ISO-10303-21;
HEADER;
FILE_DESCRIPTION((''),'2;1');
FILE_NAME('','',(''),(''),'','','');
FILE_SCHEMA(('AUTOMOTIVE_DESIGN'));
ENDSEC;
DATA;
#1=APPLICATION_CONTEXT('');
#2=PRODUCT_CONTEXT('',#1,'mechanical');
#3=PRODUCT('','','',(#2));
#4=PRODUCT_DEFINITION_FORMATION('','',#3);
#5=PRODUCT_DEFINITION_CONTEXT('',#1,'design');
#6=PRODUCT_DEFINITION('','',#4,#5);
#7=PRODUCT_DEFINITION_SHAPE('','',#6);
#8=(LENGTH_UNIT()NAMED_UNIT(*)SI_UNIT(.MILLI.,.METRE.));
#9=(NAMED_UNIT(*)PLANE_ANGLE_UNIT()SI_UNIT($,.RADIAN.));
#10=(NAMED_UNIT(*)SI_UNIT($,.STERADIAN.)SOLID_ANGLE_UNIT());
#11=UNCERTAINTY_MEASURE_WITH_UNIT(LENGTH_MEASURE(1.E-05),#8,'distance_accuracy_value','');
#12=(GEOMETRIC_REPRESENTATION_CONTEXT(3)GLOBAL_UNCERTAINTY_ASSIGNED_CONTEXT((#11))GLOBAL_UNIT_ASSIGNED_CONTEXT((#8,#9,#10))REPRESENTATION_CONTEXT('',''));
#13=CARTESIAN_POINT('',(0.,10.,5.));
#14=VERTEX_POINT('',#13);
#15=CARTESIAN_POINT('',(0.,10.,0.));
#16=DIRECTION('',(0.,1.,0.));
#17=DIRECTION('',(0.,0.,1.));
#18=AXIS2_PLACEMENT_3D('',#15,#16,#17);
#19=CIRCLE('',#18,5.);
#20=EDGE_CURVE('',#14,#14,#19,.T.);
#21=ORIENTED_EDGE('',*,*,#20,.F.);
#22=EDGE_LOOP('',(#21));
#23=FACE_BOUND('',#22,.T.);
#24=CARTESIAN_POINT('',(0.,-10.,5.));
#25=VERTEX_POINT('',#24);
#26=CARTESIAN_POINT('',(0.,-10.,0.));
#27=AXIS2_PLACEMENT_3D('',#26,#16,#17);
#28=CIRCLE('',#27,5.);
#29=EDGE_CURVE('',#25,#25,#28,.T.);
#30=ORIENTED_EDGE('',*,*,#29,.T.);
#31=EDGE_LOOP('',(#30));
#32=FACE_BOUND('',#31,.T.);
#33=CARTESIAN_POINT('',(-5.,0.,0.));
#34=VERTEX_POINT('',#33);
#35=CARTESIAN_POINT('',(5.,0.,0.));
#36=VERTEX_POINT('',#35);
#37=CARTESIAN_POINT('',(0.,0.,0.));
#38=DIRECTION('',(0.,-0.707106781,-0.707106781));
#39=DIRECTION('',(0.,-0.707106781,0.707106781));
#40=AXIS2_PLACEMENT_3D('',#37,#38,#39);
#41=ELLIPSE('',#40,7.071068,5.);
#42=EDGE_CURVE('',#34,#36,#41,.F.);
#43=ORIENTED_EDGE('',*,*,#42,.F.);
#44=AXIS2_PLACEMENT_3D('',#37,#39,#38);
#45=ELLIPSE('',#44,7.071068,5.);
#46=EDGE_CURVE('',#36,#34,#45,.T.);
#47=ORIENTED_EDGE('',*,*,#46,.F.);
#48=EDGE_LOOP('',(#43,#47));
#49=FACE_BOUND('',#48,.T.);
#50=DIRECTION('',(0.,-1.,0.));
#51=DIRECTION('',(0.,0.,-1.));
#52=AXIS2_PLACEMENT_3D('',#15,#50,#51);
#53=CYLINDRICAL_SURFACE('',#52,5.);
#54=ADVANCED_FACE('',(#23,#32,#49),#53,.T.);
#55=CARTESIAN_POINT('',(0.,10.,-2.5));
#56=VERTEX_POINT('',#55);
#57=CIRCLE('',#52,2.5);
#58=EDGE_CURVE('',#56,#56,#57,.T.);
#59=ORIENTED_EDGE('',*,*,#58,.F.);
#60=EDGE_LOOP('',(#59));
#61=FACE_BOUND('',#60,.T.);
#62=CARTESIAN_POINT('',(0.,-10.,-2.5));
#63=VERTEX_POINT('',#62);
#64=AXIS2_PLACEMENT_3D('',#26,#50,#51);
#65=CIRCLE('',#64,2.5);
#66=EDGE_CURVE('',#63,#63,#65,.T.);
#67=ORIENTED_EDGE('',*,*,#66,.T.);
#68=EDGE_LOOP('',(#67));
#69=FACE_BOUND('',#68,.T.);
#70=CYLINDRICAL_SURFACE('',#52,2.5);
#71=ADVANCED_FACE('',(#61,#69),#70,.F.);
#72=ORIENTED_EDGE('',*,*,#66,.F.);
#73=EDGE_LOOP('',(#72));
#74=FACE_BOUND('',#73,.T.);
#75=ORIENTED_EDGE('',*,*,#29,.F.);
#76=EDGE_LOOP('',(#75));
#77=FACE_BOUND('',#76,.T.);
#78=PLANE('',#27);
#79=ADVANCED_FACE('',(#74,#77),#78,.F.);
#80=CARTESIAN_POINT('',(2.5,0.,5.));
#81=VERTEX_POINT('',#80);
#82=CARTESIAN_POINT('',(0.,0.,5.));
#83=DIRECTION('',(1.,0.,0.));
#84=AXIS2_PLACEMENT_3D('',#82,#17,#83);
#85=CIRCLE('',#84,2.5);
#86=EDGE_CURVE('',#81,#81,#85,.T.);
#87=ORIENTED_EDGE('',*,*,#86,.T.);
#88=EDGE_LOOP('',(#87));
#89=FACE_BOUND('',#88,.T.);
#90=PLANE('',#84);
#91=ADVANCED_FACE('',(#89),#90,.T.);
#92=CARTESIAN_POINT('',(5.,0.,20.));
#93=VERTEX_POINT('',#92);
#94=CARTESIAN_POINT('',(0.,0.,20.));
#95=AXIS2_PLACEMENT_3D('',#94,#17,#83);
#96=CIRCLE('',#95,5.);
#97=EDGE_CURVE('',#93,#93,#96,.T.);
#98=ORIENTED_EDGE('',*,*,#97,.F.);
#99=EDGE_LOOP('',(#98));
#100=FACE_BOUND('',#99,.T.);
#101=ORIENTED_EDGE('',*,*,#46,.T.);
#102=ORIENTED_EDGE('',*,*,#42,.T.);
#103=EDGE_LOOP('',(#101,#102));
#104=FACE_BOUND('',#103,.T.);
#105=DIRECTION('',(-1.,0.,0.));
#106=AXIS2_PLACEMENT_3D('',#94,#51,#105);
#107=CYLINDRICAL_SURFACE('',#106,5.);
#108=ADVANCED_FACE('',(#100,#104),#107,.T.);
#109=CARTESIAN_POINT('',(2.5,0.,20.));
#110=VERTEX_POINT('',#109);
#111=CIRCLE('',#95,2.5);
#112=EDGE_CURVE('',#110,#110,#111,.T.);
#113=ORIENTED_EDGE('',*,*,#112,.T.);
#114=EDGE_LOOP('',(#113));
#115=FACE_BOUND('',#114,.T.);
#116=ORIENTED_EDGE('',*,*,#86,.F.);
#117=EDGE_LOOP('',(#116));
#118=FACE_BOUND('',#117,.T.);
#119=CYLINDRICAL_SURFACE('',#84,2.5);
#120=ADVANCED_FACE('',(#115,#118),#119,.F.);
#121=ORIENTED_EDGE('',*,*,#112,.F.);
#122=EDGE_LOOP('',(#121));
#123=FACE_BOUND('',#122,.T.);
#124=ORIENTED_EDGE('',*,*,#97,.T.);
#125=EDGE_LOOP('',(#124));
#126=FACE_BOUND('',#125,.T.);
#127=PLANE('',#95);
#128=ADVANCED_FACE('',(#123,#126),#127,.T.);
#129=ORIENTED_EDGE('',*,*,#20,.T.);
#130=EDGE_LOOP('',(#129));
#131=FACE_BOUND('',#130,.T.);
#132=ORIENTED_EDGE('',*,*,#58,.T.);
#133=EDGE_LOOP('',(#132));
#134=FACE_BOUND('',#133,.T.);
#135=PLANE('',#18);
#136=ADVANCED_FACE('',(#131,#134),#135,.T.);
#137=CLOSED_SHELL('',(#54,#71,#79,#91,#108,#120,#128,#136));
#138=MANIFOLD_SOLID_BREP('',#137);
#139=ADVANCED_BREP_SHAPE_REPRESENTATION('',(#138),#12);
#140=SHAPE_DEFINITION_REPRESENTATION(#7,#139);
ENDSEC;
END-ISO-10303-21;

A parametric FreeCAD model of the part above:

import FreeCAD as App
import Part
import Sketcher
Q = App.Units.Quantity

doc = App.newDocument("Part")
body = doc.addObject("PartDesign::Body", "Body")

# Sketch on XZ plane
sketch1 = body.newObject("Sketcher::SketchObject", "Sketch")
sketch1.AttachmentSupport = (doc.getObject("XZ_Plane"), [""])
sketch1.MapMode = "FlatFace"
sketch1.addGeometry(Part.Circle(App.Vector(0, 0, 0), App.Vector(0, 0, 1), 5), False)
sketch1.addConstraint(Sketcher.Constraint("Coincident", 0, 3, -1, 1))
sketch1.addConstraint(Sketcher.Constraint("Diameter", 0, Q("10 mm")))
pad1 = body.newObject("PartDesign::Pad", "Pad")
pad1.Profile = sketch1
pad1.Length = 20
pad1.Midplane = True

# Sketch on XY plane
sketch2 = body.newObject("Sketcher::SketchObject", "Sketch001")
sketch2.AttachmentSupport = (doc.getObject("XY_Plane"), [""])
sketch2.MapMode = "FlatFace"
sketch2.addGeometry(Part.Circle(App.Vector(0, 0, 0), App.Vector(0, 0, 1), 5), False)
sketch2.addConstraint(Sketcher.Constraint("Coincident", 0, 3, -1, 1))
sketch2.addConstraint(Sketcher.Constraint("Diameter", 0, Q("10 mm")))
pad2 = body.newObject("PartDesign::Pad", "Pad001")
pad2.Profile = sketch2
pad2.Length = 20

# Sketch on XY plane
sketch3 = body.newObject("Sketcher::SketchObject", "Sketch002")
sketch3.AttachmentSupport = (doc.getObject("XY_Plane"), [""])
sketch3.MapMode = "FlatFace"
sketch3.AttachmentOffset = App.Placement(App.Vector(0, 0, 20), App.Rotation())
sketch3.addGeometry(Part.Circle(App.Vector(0, 0, 0), App.Vector(0, 0, 1), 2.5), False)
sketch3.addConstraint(Sketcher.Constraint("Coincident", 0, 3, -1, 1))
sketch3.addConstraint(Sketcher.Constraint("Diameter", 0, Q("5 mm")))
pocket1 = body.newObject("PartDesign::Pocket", "Pocket")
pocket1.Profile = sketch3
pocket1.Length = 15

# Sketch on XZ plane
sketch4 = body.newObject("Sketcher::SketchObject", "Sketch003")
sketch4.AttachmentSupport = (doc.getObject("XZ_Plane"), [""])
sketch4.MapMode = "FlatFace"
sketch4.AttachmentOffset = App.Placement(App.Vector(0, 0, 10), App.Rotation())
sketch4.addGeometry(Part.Circle(App.Vector(0, 0, 0), App.Vector(0, 0, 1), 2.5), False)
sketch4.addConstraint(Sketcher.Constraint("Coincident", 0, 3, -1, 1))
sketch4.addConstraint(Sketcher.Constraint("Diameter", 0, Q("5 mm")))
pocket2 = body.newObject("PartDesign::Pocket", "Pocket001")
pocket2.Profile = sketch4
pocket2.Type = "ThroughAll"

doc.recompute()
